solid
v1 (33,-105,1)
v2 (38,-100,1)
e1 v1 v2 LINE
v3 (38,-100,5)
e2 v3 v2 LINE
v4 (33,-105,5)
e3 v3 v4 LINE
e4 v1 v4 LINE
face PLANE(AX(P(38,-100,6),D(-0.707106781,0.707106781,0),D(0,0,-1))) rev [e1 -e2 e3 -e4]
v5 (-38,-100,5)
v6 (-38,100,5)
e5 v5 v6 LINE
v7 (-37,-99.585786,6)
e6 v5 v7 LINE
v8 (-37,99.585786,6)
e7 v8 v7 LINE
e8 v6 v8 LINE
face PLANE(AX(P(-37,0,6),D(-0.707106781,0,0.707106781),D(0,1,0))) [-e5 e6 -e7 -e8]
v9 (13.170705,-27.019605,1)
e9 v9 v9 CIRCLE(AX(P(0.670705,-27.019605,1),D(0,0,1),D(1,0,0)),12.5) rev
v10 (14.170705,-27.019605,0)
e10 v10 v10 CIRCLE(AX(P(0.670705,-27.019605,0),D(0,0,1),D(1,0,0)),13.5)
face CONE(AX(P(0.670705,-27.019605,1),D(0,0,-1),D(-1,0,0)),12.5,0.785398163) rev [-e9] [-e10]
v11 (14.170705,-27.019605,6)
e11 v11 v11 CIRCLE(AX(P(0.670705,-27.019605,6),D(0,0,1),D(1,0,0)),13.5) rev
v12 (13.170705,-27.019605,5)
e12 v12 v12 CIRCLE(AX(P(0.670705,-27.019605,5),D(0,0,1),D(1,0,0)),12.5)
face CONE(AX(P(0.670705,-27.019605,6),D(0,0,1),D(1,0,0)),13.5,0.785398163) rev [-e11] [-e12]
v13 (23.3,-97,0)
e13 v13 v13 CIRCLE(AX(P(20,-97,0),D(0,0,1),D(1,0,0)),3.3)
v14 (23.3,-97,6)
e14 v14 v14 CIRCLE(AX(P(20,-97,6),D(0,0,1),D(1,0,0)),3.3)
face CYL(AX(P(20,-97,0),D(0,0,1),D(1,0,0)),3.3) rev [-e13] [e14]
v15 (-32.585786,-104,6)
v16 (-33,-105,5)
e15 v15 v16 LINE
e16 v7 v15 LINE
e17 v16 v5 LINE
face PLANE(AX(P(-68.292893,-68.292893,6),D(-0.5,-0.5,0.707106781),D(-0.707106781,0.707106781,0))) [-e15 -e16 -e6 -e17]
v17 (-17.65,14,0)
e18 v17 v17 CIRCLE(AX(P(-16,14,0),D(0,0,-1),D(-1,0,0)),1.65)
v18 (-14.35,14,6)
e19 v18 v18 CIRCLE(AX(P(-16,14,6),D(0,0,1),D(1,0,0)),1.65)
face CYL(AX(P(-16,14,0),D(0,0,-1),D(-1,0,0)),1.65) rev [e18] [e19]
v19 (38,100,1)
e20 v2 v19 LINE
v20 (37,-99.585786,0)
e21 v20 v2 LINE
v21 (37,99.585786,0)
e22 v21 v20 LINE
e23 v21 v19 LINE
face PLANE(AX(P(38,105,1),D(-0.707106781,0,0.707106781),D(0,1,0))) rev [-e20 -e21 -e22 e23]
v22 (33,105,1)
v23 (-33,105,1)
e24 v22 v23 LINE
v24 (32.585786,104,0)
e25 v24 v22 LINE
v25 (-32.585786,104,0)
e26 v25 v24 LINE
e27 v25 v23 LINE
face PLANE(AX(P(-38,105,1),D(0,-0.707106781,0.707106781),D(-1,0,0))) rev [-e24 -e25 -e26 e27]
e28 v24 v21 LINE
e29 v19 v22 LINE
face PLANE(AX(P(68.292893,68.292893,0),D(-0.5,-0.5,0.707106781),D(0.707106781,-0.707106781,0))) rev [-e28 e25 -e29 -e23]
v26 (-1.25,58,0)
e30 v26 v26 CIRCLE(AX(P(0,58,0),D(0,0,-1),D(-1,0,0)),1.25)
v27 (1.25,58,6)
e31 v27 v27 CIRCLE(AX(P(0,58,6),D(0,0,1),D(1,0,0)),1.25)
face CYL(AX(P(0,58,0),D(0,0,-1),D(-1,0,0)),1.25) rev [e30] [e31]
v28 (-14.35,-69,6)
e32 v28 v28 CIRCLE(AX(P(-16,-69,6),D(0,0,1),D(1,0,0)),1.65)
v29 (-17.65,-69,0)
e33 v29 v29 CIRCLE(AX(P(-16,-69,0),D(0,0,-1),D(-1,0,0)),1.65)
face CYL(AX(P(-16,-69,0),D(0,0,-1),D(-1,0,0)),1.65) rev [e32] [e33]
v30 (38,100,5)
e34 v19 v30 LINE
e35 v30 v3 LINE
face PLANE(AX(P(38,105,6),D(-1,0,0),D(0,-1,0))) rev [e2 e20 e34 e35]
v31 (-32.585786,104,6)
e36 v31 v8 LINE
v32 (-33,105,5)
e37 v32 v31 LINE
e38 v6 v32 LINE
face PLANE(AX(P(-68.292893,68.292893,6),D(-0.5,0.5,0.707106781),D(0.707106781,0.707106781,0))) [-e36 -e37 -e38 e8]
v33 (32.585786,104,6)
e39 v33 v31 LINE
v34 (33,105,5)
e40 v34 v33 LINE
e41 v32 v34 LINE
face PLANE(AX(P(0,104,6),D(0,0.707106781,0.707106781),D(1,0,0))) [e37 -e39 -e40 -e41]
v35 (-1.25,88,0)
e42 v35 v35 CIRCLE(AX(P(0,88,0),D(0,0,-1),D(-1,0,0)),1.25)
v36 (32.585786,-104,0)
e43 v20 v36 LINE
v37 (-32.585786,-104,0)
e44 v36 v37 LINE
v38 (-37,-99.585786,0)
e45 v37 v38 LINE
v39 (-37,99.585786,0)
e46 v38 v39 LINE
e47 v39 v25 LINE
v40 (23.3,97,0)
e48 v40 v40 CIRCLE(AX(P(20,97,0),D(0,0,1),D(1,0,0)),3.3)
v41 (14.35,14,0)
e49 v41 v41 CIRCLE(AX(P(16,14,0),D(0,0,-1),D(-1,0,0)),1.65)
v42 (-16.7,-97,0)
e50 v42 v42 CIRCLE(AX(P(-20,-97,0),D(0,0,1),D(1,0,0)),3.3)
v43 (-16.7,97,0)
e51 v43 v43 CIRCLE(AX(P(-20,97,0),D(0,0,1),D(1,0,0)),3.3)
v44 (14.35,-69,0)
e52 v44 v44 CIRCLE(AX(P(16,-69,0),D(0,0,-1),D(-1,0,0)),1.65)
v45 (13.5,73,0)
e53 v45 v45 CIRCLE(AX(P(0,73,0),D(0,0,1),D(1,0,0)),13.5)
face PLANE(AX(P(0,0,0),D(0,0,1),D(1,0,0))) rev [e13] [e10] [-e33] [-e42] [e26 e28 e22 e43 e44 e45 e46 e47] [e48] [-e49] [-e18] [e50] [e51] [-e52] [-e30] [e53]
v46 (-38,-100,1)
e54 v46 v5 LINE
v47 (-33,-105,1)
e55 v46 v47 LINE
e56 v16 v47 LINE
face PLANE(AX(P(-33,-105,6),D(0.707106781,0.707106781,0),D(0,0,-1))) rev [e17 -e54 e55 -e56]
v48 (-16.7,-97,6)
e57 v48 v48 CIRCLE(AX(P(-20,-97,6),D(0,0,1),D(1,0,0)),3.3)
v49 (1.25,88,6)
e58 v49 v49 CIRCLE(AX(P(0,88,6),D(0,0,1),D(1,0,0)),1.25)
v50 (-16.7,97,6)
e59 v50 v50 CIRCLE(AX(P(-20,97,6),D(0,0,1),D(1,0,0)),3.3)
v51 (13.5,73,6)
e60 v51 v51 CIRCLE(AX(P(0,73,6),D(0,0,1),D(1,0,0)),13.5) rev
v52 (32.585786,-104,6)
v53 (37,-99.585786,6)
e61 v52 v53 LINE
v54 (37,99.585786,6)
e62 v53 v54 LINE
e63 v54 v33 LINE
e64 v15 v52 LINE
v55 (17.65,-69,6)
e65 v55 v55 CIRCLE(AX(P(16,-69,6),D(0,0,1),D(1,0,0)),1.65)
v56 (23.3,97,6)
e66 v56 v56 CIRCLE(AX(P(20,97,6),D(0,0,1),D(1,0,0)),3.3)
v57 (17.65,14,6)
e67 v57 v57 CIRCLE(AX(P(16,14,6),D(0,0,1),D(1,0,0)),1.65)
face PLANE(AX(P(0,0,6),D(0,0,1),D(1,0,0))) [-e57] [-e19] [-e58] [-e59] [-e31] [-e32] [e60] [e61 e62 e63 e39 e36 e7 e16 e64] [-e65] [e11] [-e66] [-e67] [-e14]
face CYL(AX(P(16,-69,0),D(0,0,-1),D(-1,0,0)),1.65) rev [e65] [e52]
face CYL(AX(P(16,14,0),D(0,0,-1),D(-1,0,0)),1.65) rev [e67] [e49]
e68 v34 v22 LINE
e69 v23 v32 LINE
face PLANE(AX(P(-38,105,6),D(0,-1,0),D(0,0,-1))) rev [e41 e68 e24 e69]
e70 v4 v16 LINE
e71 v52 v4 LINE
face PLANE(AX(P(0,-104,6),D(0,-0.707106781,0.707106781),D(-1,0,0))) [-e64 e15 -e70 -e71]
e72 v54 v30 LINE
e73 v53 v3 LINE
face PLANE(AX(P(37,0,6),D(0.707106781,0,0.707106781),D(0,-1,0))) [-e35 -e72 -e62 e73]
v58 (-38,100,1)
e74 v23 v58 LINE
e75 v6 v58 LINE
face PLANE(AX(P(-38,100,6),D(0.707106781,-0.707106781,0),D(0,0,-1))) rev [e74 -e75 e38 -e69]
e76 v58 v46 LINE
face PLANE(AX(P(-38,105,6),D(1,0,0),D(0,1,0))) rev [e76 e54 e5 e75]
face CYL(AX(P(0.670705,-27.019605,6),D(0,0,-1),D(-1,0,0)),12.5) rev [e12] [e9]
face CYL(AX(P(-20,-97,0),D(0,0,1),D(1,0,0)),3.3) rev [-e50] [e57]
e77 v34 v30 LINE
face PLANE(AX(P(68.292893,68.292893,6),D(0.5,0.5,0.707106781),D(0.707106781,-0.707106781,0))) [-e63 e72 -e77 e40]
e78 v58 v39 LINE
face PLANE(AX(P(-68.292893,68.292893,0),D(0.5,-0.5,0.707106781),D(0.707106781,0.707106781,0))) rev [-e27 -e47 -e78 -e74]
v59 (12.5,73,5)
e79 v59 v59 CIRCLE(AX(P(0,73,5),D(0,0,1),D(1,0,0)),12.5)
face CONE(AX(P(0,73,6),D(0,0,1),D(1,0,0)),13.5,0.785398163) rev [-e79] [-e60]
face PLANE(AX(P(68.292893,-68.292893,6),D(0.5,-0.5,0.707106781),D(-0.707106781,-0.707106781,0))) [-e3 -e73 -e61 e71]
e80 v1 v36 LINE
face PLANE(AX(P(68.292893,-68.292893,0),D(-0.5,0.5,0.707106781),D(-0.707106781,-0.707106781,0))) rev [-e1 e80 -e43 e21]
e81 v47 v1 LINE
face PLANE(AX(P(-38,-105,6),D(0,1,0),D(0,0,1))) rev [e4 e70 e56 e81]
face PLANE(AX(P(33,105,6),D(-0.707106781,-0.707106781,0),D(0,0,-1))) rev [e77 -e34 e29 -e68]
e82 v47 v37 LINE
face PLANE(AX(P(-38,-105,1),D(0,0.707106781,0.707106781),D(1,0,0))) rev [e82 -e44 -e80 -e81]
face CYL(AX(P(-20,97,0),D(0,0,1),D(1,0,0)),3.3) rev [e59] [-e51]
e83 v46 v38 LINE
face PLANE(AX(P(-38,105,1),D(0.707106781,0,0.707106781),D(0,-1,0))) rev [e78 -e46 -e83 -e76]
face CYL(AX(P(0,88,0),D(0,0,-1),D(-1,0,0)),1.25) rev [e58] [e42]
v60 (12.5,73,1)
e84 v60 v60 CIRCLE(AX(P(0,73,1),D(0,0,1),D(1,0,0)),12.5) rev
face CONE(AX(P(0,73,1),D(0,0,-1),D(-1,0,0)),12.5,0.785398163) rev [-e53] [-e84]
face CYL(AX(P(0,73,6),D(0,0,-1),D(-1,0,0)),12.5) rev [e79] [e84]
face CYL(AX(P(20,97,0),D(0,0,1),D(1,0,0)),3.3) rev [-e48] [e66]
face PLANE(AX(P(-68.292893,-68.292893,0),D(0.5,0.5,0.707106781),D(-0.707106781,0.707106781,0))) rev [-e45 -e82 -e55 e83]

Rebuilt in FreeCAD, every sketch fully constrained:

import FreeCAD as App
import Part
import Sketcher


def edges_at(feature, points):
    """Names of the edges that pass closest to the given points."""
    edges = feature.Shape.Edges
    near = lambda p: min(range(len(edges)), key=lambda i: edges[i].distToShape(Part.Vertex(*p))[0])
    return sorted({f"Edge{near(p) + 1}" for p in points})

doc = App.newDocument("Part")
body = doc.addObject("PartDesign::Body", "Body")

# Sketch on XY plane
sketch1 = body.newObject("Sketcher::SketchObject", "Sketch")
sketch1.AttachmentSupport = (doc.getObject("XY_Plane"), [""])
sketch1.MapMode = "FlatFace"
sketch1.addGeometry(Part.LineSegment(App.Vector(-38, 105, 0), App.Vector(-38, -105, 0)), False)
sketch1.addGeometry(Part.LineSegment(App.Vector(-38, -105, 0), App.Vector(38, -105, 0)), False)
sketch1.addGeometry(Part.LineSegment(App.Vector(38, -105, 0), App.Vector(38, 105, 0)), False)
sketch1.addGeometry(Part.LineSegment(App.Vector(38, 105, 0), App.Vector(-38, 105, 0)), False)
sketch1.addConstraint(Sketcher.Constraint("Coincident", 0, 2, 1, 1))
sketch1.addConstraint(Sketcher.Constraint("Coincident", 1, 2, 2, 1))
sketch1.addConstraint(Sketcher.Constraint("Coincident", 2, 2, 3, 1))
sketch1.addConstraint(Sketcher.Constraint("Coincident", 3, 2, 0, 1))
sketch1.addConstraint(Sketcher.Constraint("Vertical", 0))
sketch1.addConstraint(Sketcher.Constraint("Horizontal", 1))
sketch1.addConstraint(Sketcher.Constraint("Vertical", 2))
sketch1.addConstraint(Sketcher.Constraint("Horizontal", 3))
sketch1.addConstraint(Sketcher.Constraint("Symmetric", 0, 2, 2, 2, -1, 1))
sketch1.addConstraint(Sketcher.Constraint("DistanceX", 1, 1, 1, 2, 76.0))
sketch1.addConstraint(Sketcher.Constraint("DistanceY", 0, 2, 0, 1, 210.0))
pad1 = body.newObject("PartDesign::Pad", "Pad")
pad1.Profile = sketch1
pad1.Length = 6

# Sketch on XY plane
sketch2 = body.newObject("Sketcher::SketchObject", "Sketch001")
sketch2.AttachmentSupport = (doc.getObject("XY_Plane"), [""])
sketch2.MapMode = "FlatFace"
sketch2.AttachmentOffset = App.Placement(App.Vector(0, 0, 6), App.Rotation())
sketch2.addGeometry(Part.Circle(App.Vector(-20, 97, 0), App.Vector(0, 0, 1), 3.3), False)
sketch2.addGeometry(Part.Circle(App.Vector(20, 97, 0), App.Vector(0, 0, 1), 3.3), False)
sketch2.addGeometry(Part.Circle(App.Vector(-20, -97, 0), App.Vector(0, 0, 1), 3.3), False)
sketch2.addGeometry(Part.Circle(App.Vector(20, -97, 0), App.Vector(0, 0, 1), 3.3), False)
sketch2.addConstraint(Sketcher.Constraint("Equal", 0, 1))
sketch2.addConstraint(Sketcher.Constraint("Equal", 1, 2))
sketch2.addConstraint(Sketcher.Constraint("Equal", 2, 3))
sketch2.addConstraint(Sketcher.Constraint("Symmetric", 1, 3, 2, 3, -1, 1))
sketch2.addConstraint(Sketcher.Constraint("Symmetric", 0, 3, 3, 3, -1, 1))
sketch2.addConstraint(Sketcher.Constraint("Symmetric", 0, 3, 1, 3, -2))
sketch2.addConstraint(Sketcher.Constraint("Diameter", 0, 6.6))
sketch2.addConstraint(Sketcher.Constraint("DistanceX", 0, 3, -1, 1, 20.0))
sketch2.addConstraint(Sketcher.Constraint("DistanceY", -1, 1, 0, 3, 97.0))
pocket1 = body.newObject("PartDesign::Pocket", "Pocket")
pocket1.Profile = sketch2
pocket1.Type = "ThroughAll"
doc.recompute()

chamfer = body.newObject("PartDesign::Chamfer", "Chamfer")
chamfer.Base = (pocket1, edges_at(pocket1, [
    (38, -105, 3),
    (-38, -105, 3),
    (-38, 105, 3),
    (38, 105, 3),
]))
chamfer.Size = 5
doc.recompute()

chamfer2 = body.newObject("PartDesign::Chamfer", "Chamfer001")
chamfer2.Base = (chamfer, edges_at(chamfer, [
    (0, -105, 0),
    (0, -105, 6),
    (38, 0, 0),
    (-38, 0, 0),
    (0, 105, 0),
    (35.5, 102.5, 0),
    (-35.5, 102.5, 0),
    (35.5, -102.5, 0),
    (-35.5, -102.5, 0),
    (-38, 0, 6),
    (38, 0, 6),
    (0, 105, 6),
    (35.5, 102.5, 6),
    (-35.5, 102.5, 6),
    (35.5, -102.5, 6),
    (-35.5, -102.5, 6),
]))
chamfer2.Size = 1

# Sketch on XY plane
sketch3 = body.newObject("Sketcher::SketchObject", "Sketch002")
sketch3.AttachmentSupport = (doc.getObject("XY_Plane"), [""])
sketch3.MapMode = "FlatFace"
sketch3.addGeometry(Part.Circle(App.Vector(16, 14, 0), App.Vector(0, 0, 1), 1.6), False)
sketch3.addGeometry(Part.Circle(App.Vector(-16, 14, 0), App.Vector(0, 0, 1), 1.6), False)
sketch3.addGeometry(Part.Circle(App.Vector(-16, -69, 0), App.Vector(0, 0, 1), 1.6), False)
sketch3.addGeometry(Part.Circle(App.Vector(16, -69, 0), App.Vector(0, 0, 1), 1.6), False)
sketch3.addConstraint(Sketcher.Constraint("Equal", 0, 1))
sketch3.addConstraint(Sketcher.Constraint("Equal", 1, 2))
sketch3.addConstraint(Sketcher.Constraint("Equal", 2, 3))
sketch3.addConstraint(Sketcher.Constraint("Symmetric", 0, 3, 1, 3, -2))
sketch3.addConstraint(Sketcher.Constraint("Symmetric", 2, 3, 3, 3, -2))
sketch3.addConstraint(Sketcher.Constraint("Vertical", 1, 3, 2, 3))
sketch3.addConstraint(Sketcher.Constraint("Diameter", 0, 3.3))
sketch3.addConstraint(Sketcher.Constraint("DistanceX", -1, 1, 0, 3, 16.0))
sketch3.addConstraint(Sketcher.Constraint("DistanceY", -1, 1, 0, 3, 14.0))
sketch3.addConstraint(Sketcher.Constraint("DistanceY", 2, 3, -1, 1, 69.0))
doc.recompute()
hole = body.newObject("PartDesign::Hole", "Hole")
hole.Profile = sketch3
hole.ThreadType = "None"
hole.Diameter = 3.3
hole.DepthType = "Dimension"
hole.Depth = 10.1
hole.DrillPoint = "Angled"
hole.DrillPointAngle = 118
hole.Reversed = True

# Sketch on XY plane
sketch4 = body.newObject("Sketcher::SketchObject", "Sketch003")
sketch4.AttachmentSupport = (doc.getObject("XY_Plane"), [""])
sketch4.MapMode = "FlatFace"
sketch4.addGeometry(Part.Circle(App.Vector(0, 58, 0), App.Vector(0, 0, 1), 1.2), False)
sketch4.addGeometry(Part.Circle(App.Vector(0, 88, 0), App.Vector(0, 0, 1), 1.2), False)
sketch4.addConstraint(Sketcher.Constraint("Equal", 0, 1))
sketch4.addConstraint(Sketcher.Constraint("PointOnObject", 0, 3, -2))
sketch4.addConstraint(Sketcher.Constraint("PointOnObject", 1, 3, -2))
sketch4.addConstraint(Sketcher.Constraint("Diameter", 0, 2.5))
sketch4.addConstraint(Sketcher.Constraint("DistanceY", -1, 1, 0, 3, 58.0))
sketch4.addConstraint(Sketcher.Constraint("DistanceY", -1, 1, 1, 3, 88.0))
doc.recompute()
hole2 = body.newObject("PartDesign::Hole", "Hole001")
hole2.Profile = sketch4
hole2.ThreadType = "None"
hole2.Diameter = 2.5
hole2.DepthType = "Dimension"
hole2.Depth = 7.5
hole2.DrillPoint = "Angled"
hole2.DrillPointAngle = 118
hole2.Reversed = True

# Sketch on XY plane
sketch5 = body.newObject("Sketcher::SketchObject", "Sketch004")
sketch5.AttachmentSupport = (doc.getObject("XY_Plane"), [""])
sketch5.MapMode = "FlatFace"
sketch5.addGeometry(Part.Circle(App.Vector(0, 73, 0), App.Vector(0, 0, 1), 12), False)
sketch5.addConstraint(Sketcher.Constraint("PointOnObject", 0, 3, -2))
sketch5.addConstraint(Sketcher.Constraint("Diameter", 0, 25.0))
sketch5.addConstraint(Sketcher.Constraint("DistanceY", -1, 1, 0, 3, 73.0))
pocket2 = body.newObject("PartDesign::Pocket", "Pocket001")
pocket2.Profile = sketch5
pocket2.Type = "ThroughAll"
pocket2.Reversed = True

# Sketch on XY plane
sketch6 = body.newObject("Sketcher::SketchObject", "Sketch005")
sketch6.AttachmentSupport = (doc.getObject("XY_Plane"), [""])
sketch6.MapMode = "FlatFace"
sketch6.addGeometry(Part.Circle(App.Vector(1, -27, 0), App.Vector(0, 0, 1), 12), False)
sketch6.addConstraint(Sketcher.Constraint("Diameter", 0, 25.0))
sketch6.addConstraint(Sketcher.Constraint("DistanceX", -1, 1, 0, 3, 0.670705))
sketch6.addConstraint(Sketcher.Constraint("DistanceY", 0, 3, -1, 1, 27.019605))
pocket3 = body.newObject("PartDesign::Pocket", "Pocket002")
pocket3.Profile = sketch6
pocket3.Type = "ThroughAll"
pocket3.Reversed = True
doc.recompute()

chamfer3 = body.newObject("PartDesign::Chamfer", "Chamfer002")
chamfer3.Base = (pocket3, edges_at(pocket3, [
    (12.5, 73, 6),
    (12.5, 73, 0),
    (13.171, -27.02, 6),
    (13.171, -27.02, 0),
]))
chamfer3.Size = 1

doc.recompute()
